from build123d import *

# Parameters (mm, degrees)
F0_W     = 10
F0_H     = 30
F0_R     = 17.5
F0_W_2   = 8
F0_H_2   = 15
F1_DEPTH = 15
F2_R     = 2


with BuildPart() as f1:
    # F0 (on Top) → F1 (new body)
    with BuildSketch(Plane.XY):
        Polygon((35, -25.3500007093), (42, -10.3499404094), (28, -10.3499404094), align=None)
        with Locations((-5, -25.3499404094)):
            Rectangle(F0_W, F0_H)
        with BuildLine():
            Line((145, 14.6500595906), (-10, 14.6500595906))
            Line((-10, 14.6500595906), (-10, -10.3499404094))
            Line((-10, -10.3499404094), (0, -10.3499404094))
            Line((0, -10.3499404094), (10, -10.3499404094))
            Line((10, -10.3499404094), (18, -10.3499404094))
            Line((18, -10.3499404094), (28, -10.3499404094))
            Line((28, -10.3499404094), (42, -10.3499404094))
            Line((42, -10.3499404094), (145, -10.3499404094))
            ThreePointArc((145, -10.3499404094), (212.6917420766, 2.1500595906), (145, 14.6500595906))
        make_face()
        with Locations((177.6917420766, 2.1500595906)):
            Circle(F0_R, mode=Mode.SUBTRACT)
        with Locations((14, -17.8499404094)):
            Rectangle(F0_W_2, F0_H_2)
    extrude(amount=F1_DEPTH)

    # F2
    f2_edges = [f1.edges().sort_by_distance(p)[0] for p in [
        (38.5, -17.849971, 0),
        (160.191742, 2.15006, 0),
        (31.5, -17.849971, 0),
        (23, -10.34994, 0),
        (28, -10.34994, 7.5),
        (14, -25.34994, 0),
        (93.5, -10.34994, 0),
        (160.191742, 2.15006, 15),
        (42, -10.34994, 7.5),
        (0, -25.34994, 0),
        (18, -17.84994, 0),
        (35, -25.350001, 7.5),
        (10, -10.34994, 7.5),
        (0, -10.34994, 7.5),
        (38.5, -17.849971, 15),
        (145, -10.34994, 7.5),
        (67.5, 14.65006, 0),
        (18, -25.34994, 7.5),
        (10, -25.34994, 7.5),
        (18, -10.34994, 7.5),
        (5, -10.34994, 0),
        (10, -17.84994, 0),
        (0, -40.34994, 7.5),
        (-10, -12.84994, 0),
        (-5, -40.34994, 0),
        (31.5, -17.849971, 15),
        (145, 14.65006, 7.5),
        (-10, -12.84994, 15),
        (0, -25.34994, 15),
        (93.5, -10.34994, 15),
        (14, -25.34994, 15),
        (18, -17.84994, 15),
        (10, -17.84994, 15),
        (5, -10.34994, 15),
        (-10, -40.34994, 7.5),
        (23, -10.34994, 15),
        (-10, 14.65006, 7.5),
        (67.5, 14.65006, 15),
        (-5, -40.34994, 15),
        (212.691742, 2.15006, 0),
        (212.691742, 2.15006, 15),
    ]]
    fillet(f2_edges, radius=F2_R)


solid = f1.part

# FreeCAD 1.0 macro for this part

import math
import FreeCAD as App
import Part
import Sketcher

V = App.Vector

doc = App.newDocument("Part")
body = doc.addObject("PartDesign::Body", "Body")

sketch1 = body.newObject("Sketcher::SketchObject", "Sketch")
sketch1.AttachmentSupport = (doc.getObject("XY_Plane"), [""])
sketch1.MapMode = "FlatFace"
sketch1.addGeometry(Part.LineSegment(V(35, -25.350001, 0), V(42, -10.34994, 0)), False)
sketch1.addGeometry(Part.LineSegment(V(42, -10.34994, 0), V(145, -10.34994, 0)), False)
sketch1.addGeometry(Part.ArcOfCircle(Part.Circle(V(177.691742, 2.15006, 0), V(0, 0, 1), 35), math.radians(-159.075168), math.radians(159.075168)), False)
sketch1.addGeometry(Part.LineSegment(V(145, 14.65006, 0), V(-10, 14.65006, 0)), False)
sketch1.addGeometry(Part.LineSegment(V(-10, 14.65006, 0), V(-10, -40.34994, 0)), False)
sketch1.addGeometry(Part.LineSegment(V(-10, -40.34994, 0), V(0, -40.34994, 0)), False)
sketch1.addGeometry(Part.LineSegment(V(0, -40.34994, 0), V(0, -10.34994, 0)), False)
sketch1.addGeometry(Part.LineSegment(V(0, -10.34994, 0), V(10, -10.34994, 0)), False)
sketch1.addGeometry(Part.LineSegment(V(10, -10.34994, 0), V(10, -25.34994, 0)), False)
sketch1.addGeometry(Part.LineSegment(V(10, -25.34994, 0), V(18, -25.34994, 0)), False)
sketch1.addGeometry(Part.LineSegment(V(18, -25.34994, 0), V(18, -10.34994, 0)), False)
sketch1.addGeometry(Part.LineSegment(V(18, -10.34994, 0), V(28, -10.34994, 0)), False)
sketch1.addGeometry(Part.LineSegment(V(28, -10.34994, 0), V(35, -25.350001, 0)), False)
sketch1.addGeometry(Part.Circle(V(177.691742, 2.15006, 0), V(0, 0, 1), 17.5), False)
sketch1.addConstraint(Sketcher.Constraint("Coincident", 0, 2, 1, 1))
sketch1.addConstraint(Sketcher.Constraint("Coincident", 1, 2, 2, 1))
sketch1.addConstraint(Sketcher.Constraint("Coincident", 2, 2, 3, 1))
sketch1.addConstraint(Sketcher.Constraint("Coincident", 3, 2, 4, 1))
sketch1.addConstraint(Sketcher.Constraint("Coincident", 4, 2, 5, 1))
sketch1.addConstraint(Sketcher.Constraint("Coincident", 5, 2, 6, 1))
sketch1.addConstraint(Sketcher.Constraint("Coincident", 6, 2, 7, 1))
sketch1.addConstraint(Sketcher.Constraint("Coincident", 7, 2, 8, 1))
sketch1.addConstraint(Sketcher.Constraint("Coincident", 8, 2, 9, 1))
sketch1.addConstraint(Sketcher.Constraint("Coincident", 9, 2, 10, 1))
sketch1.addConstraint(Sketcher.Constraint("Coincident", 10, 2, 11, 1))
sketch1.addConstraint(Sketcher.Constraint("Coincident", 11, 2, 12, 1))
sketch1.addConstraint(Sketcher.Constraint("Coincident", 12, 2, 0, 1))
sketch1.addConstraint(Sketcher.Constraint("Horizontal", 1))
sketch1.addConstraint(Sketcher.Constraint("Horizontal", 3))
sketch1.addConstraint(Sketcher.Constraint("Vertical", 4))
sketch1.addConstraint(Sketcher.Constraint("Horizontal", 5))
sketch1.addConstraint(Sketcher.Constraint("Vertical", 6))
sketch1.addConstraint(Sketcher.Constraint("Horizontal", 7))
sketch1.addConstraint(Sketcher.Constraint("Vertical", 8))
sketch1.addConstraint(Sketcher.Constraint("Horizontal", 9))
sketch1.addConstraint(Sketcher.Constraint("Vertical", 10))
sketch1.addConstraint(Sketcher.Constraint("Horizontal", 11))
sketch1.addConstraint(Sketcher.Constraint("Coincident", 13, 3, 2, 3))
sketch1.addConstraint(Sketcher.Constraint("PointOnObject", 5, 2, -2))
sketch1.addConstraint(Sketcher.Constraint("Horizontal", 1, 2, 6, 2))
sketch1.addConstraint(Sketcher.Constraint("Horizontal", 7, 2, 10, 2))
sketch1.addConstraint(Sketcher.Constraint("Vertical", 1, 2, 2, 2))
sketch1.addConstraint(Sketcher.Constraint("Equal", 5, 7))
sketch1.addConstraint(Sketcher.Constraint("Equal", 7, 11))
sketch1.addConstraint(Sketcher.Constraint("Equal", 0, 12))
sketch1.addConstraint(Sketcher.Constraint("Diameter", 13, 35.0))
sketch1.addConstraint(Sketcher.Constraint("Radius", 2, 35.0))
sketch1.addConstraint(Sketcher.Constraint("DistanceX", 1, 1, 1, 2, 103.0))
sketch1.addConstraint(Sketcher.Constraint("DistanceX", 3, 2, 3, 1, 155.0))
sketch1.addConstraint(Sketcher.Constraint("DistanceX", 5, 1, 5, 2, 10.0))
sketch1.addConstraint(Sketcher.Constraint("DistanceX", 9, 1, 9, 2, 8.0))
sketch1.addConstraint(Sketcher.Constraint("DistanceY", 4, 2, 4, 1, 55.0))
sketch1.addConstraint(Sketcher.Constraint("DistanceY", 6, 1, 6, 2, 30.0))
sketch1.addConstraint(Sketcher.Constraint("DistanceY", 8, 2, 8, 1, 15.0))
sketch1.addConstraint(Sketcher.Constraint("DistanceY", 12, 2, -1, 1, 25.350001))
sketch1.addConstraint(Sketcher.Constraint("Distance", 0, 16.553))
pad1 = body.newObject("PartDesign::Pad", "Pad")
pad1.Profile = sketch1
pad1.Length = 15
doc.recompute()

fillet = body.newObject("PartDesign::Fillet", "Fillet")
fillet.Base = (pad1, ["Edge1"])
fillet.UseAllEdges = True
fillet.Radius = 2

doc.recompute()
